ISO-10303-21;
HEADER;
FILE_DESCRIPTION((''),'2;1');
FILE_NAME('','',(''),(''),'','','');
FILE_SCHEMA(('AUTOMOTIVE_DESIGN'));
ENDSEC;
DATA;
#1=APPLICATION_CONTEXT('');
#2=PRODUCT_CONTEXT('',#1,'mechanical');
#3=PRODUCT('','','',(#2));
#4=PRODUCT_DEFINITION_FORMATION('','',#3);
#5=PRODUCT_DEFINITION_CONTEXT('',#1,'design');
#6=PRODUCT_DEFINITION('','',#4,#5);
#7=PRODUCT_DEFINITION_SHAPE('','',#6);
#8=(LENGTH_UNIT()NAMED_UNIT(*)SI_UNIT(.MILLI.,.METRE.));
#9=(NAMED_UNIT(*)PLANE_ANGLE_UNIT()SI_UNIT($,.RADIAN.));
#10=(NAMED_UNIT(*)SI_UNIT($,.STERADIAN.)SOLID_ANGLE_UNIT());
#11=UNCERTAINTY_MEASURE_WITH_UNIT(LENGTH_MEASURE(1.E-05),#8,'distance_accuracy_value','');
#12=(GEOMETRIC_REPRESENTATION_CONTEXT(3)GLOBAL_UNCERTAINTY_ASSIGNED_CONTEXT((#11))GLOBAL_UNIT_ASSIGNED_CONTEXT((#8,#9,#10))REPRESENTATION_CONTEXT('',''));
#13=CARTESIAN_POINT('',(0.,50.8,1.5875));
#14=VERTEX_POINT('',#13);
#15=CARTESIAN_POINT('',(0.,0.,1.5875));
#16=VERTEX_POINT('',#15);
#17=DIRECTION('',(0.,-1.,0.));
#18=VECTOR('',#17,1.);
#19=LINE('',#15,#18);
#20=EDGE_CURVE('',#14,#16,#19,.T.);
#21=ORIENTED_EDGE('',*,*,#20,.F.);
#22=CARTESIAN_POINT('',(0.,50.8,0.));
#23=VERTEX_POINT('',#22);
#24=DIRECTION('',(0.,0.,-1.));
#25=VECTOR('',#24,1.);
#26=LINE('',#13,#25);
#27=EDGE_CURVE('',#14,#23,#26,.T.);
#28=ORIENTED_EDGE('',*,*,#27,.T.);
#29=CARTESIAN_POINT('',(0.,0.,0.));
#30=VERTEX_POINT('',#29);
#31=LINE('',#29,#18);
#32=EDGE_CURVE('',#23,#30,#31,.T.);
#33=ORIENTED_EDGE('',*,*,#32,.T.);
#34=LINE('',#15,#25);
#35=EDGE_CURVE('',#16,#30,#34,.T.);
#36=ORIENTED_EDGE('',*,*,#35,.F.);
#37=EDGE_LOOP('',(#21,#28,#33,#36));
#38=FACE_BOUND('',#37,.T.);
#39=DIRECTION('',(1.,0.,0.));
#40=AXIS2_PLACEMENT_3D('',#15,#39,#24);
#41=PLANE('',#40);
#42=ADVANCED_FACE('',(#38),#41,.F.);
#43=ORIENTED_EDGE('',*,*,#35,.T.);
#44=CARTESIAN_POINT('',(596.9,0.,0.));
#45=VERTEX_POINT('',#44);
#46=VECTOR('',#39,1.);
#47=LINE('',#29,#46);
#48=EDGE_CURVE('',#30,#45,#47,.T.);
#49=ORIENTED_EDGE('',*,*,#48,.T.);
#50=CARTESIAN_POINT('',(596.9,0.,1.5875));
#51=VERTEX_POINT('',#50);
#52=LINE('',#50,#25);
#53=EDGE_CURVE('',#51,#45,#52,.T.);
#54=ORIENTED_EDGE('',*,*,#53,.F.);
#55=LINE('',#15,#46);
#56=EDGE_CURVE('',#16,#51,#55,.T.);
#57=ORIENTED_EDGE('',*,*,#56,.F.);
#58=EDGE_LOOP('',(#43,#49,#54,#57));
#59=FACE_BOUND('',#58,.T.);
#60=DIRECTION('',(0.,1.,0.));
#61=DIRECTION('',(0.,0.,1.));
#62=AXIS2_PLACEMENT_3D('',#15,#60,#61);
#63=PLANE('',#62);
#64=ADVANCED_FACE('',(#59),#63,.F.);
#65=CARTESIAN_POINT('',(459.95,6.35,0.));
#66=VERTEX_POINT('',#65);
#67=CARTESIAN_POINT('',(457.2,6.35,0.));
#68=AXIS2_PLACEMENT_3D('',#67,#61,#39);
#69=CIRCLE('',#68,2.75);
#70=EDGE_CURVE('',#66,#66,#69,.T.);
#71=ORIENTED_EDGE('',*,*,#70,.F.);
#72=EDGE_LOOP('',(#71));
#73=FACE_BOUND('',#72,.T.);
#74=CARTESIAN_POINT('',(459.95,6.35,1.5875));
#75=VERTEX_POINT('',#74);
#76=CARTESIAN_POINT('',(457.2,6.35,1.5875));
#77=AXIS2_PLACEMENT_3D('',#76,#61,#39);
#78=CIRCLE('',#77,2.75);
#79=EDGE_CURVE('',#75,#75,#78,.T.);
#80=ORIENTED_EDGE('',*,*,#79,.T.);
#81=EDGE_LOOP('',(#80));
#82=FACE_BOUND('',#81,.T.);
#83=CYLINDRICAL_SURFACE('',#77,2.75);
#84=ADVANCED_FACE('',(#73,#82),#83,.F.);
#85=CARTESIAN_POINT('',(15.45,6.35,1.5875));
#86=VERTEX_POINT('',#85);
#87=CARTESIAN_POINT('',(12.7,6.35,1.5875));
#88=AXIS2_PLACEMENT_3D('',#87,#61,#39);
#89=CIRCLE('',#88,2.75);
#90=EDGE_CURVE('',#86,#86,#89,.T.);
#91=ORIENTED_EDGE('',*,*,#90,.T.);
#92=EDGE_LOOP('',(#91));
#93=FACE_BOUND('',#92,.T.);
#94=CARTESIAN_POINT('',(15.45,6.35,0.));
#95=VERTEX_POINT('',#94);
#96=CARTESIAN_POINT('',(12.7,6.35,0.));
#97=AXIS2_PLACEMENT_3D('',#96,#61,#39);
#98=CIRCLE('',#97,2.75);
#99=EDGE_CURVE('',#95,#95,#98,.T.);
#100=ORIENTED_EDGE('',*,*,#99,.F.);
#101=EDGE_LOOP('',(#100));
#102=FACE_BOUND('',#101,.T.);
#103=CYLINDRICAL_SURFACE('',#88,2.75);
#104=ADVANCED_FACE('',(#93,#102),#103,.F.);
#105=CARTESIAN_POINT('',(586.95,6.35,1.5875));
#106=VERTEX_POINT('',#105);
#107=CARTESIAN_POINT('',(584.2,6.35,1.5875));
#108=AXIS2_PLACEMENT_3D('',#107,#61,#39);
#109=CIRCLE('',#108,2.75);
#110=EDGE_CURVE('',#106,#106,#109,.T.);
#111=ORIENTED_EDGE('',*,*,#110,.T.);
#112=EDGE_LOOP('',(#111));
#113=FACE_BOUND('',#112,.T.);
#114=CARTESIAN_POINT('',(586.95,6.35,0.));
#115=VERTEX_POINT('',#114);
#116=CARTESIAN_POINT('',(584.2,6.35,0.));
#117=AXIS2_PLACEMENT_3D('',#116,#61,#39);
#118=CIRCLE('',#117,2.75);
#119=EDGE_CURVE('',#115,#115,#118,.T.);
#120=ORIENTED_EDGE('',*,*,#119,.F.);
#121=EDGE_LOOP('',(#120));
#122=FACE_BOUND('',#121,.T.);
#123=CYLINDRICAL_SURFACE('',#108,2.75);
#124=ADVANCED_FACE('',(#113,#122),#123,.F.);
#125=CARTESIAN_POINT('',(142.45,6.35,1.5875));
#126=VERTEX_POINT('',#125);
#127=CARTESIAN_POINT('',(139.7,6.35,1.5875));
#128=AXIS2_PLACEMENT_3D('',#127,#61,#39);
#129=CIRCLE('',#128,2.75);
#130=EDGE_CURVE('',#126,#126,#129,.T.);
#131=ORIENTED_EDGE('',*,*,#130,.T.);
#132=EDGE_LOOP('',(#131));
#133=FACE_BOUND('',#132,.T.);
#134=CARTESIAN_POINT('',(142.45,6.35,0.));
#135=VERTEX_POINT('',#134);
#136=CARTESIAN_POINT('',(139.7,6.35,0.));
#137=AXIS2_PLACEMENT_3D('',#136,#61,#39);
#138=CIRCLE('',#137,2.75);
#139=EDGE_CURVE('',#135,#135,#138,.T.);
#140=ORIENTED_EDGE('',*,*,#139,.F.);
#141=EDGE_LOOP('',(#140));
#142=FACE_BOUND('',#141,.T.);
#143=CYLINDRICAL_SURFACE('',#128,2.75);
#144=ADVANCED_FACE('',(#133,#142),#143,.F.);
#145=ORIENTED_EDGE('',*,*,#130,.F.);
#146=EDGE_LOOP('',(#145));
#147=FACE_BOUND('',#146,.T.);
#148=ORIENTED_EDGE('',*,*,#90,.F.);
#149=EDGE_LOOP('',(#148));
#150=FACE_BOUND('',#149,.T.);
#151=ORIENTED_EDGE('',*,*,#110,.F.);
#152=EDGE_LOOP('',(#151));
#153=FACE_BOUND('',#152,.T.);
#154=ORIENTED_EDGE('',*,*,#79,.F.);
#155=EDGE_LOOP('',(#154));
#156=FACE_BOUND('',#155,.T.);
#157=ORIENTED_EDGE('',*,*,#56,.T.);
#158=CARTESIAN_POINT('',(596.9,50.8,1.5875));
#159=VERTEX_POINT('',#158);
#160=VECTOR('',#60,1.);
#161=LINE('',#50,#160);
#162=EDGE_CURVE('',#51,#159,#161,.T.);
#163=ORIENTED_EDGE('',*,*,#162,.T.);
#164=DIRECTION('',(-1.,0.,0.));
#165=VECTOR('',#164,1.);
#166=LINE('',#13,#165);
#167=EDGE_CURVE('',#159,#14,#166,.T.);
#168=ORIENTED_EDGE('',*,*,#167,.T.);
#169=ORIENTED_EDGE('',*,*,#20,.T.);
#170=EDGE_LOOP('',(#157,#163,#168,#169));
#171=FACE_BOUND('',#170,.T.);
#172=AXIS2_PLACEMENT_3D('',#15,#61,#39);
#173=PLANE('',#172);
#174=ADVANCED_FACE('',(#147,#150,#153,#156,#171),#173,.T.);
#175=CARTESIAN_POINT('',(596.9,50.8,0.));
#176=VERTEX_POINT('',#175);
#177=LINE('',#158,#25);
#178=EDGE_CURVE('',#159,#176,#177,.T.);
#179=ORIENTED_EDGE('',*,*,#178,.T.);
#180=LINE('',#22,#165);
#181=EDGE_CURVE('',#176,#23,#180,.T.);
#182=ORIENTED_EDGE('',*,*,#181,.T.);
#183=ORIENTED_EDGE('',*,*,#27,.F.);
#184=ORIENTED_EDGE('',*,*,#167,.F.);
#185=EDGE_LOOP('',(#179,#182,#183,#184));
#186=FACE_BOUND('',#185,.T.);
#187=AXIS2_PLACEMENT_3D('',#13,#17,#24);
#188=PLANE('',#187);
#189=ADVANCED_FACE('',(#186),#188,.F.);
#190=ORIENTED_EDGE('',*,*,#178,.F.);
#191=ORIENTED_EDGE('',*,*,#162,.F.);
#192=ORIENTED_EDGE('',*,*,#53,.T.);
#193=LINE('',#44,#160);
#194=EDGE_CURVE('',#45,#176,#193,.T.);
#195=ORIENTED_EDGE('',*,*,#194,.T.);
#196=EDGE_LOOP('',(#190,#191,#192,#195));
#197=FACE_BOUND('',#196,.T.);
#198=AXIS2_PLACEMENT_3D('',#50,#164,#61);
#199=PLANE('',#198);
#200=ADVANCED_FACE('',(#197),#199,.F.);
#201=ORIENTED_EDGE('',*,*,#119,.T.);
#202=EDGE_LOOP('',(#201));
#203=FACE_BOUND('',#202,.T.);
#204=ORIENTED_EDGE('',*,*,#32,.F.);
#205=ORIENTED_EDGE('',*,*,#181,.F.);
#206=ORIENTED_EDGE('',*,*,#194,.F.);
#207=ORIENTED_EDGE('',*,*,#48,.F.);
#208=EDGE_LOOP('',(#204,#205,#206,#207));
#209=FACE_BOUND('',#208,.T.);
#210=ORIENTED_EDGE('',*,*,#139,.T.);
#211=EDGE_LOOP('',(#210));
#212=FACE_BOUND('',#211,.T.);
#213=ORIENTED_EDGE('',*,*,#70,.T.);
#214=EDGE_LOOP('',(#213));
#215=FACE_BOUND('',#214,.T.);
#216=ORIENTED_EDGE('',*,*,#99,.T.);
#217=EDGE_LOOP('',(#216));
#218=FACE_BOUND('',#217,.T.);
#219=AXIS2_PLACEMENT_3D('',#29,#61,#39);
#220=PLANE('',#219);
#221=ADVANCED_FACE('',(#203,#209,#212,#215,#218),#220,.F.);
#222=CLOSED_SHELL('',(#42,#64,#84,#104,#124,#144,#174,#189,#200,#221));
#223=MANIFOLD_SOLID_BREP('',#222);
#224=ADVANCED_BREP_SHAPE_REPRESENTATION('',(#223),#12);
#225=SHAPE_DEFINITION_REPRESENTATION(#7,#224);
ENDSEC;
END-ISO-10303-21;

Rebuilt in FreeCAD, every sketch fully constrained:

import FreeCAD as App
import Part
import Sketcher

V = App.Vector
Q = App.Units.Quantity


def add_polygon(sketch, points):
    """Adds a closed chain of lines whose ends are joined by coincident constraints."""
    first, n = sketch.GeometryCount, len(points)
    for a, b in zip(points, points[1:] + points[:1]):
        sketch.addGeometry(Part.LineSegment(App.Vector(*a, 0), App.Vector(*b, 0)), False)
    for i in range(n):
        sketch.addConstraint(Sketcher.Constraint("Coincident", first + i, 2, first + (i + 1) % n, 1))

doc = App.newDocument("Part")
body = doc.addObject("PartDesign::Body", "Body")

# Sketch on XY plane
sketch1 = doc.addObject("Sketcher::SketchObject", "Sketch")
body.addObject(sketch1)
sketch1.AttachmentSupport = (doc.XY_Plane, [""])
sketch1.MapMode = "FlatFace"
add_polygon(sketch1, [(0, 50.8), (0, 0), (596.9, 0), (596.9, 50.8)])  # lines 0-3
sketch1.addConstraint([
    Sketcher.Constraint("Vertical", 0),
    Sketcher.Constraint("Horizontal", 1),
    Sketcher.Constraint("Vertical", 2),
    Sketcher.Constraint("Horizontal", 3),
    Sketcher.Constraint("Coincident", 0, 2, -1, 1),
    Sketcher.Constraint("DistanceY", 0, 2, 0, 1, Q("2 in")),
    Sketcher.Constraint("DistanceX", 1, 1, 1, 2, Q("23.5 in")),
])
pad1 = doc.addObject("PartDesign::Pad", "Pad")
body.addObject(pad1)
pad1.Profile = sketch1
pad1.Length = Q("0.0625 in")

# Sketch on XY plane
sketch2 = doc.addObject("Sketcher::SketchObject", "Sketch001")
body.addObject(sketch2)
sketch2.AttachmentSupport = (doc.XY_Plane, [""])
sketch2.MapMode = "FlatFace"
sketch2.AttachmentOffset = App.Placement(V(0, 0, 0.0625 * 25.4), App.Rotation())
sketch2.addGeometry([
    Part.Circle(V(584.2, 6.35, 0), V(0, 0, 1), 2.75),
    Part.Circle(V(457.2, 6.35, 0), V(0, 0, 1), 2.75),
    Part.Circle(V(139.7, 6.35, 0), V(0, 0, 1), 2.75),
    Part.Circle(V(12.7, 6.35, 0), V(0, 0, 1), 2.75),
], False)
sketch2.addConstraint([
    Sketcher.Constraint("Equal", 0, 1),
    Sketcher.Constraint("Equal", 1, 2),
    Sketcher.Constraint("Equal", 2, 3),
    Sketcher.Constraint("Horizontal", 0, 3, 1, 3),
    Sketcher.Constraint("Horizontal", 1, 3, 2, 3),
    Sketcher.Constraint("Horizontal", 2, 3, 3, 3),
    Sketcher.Constraint("DistanceX", -1, 1, 0, 3, Q("23 in")),
    Sketcher.Constraint("DistanceX", -1, 1, 1, 3, Q("18 in")),
    Sketcher.Constraint("DistanceX", 3, 3, 2, 3, Q("5 in")),
    Sketcher.Constraint("DistanceX", -1, 1, 2, 3, Q("5.5 in")),
    Sketcher.Constraint("Diameter", 0, Q("5.5 mm")),
    Sketcher.Constraint("DistanceY", -1, 1, 0, 3, Q("0.25 in")),
])
doc.recompute()
hole = doc.addObject("PartDesign::Hole", "Hole")
body.addObject(hole)
hole.Profile = sketch2
hole.ThreadType = "None"
hole.Diameter = 5.5
hole.DepthType = "ThroughAll"

doc.recompute()
